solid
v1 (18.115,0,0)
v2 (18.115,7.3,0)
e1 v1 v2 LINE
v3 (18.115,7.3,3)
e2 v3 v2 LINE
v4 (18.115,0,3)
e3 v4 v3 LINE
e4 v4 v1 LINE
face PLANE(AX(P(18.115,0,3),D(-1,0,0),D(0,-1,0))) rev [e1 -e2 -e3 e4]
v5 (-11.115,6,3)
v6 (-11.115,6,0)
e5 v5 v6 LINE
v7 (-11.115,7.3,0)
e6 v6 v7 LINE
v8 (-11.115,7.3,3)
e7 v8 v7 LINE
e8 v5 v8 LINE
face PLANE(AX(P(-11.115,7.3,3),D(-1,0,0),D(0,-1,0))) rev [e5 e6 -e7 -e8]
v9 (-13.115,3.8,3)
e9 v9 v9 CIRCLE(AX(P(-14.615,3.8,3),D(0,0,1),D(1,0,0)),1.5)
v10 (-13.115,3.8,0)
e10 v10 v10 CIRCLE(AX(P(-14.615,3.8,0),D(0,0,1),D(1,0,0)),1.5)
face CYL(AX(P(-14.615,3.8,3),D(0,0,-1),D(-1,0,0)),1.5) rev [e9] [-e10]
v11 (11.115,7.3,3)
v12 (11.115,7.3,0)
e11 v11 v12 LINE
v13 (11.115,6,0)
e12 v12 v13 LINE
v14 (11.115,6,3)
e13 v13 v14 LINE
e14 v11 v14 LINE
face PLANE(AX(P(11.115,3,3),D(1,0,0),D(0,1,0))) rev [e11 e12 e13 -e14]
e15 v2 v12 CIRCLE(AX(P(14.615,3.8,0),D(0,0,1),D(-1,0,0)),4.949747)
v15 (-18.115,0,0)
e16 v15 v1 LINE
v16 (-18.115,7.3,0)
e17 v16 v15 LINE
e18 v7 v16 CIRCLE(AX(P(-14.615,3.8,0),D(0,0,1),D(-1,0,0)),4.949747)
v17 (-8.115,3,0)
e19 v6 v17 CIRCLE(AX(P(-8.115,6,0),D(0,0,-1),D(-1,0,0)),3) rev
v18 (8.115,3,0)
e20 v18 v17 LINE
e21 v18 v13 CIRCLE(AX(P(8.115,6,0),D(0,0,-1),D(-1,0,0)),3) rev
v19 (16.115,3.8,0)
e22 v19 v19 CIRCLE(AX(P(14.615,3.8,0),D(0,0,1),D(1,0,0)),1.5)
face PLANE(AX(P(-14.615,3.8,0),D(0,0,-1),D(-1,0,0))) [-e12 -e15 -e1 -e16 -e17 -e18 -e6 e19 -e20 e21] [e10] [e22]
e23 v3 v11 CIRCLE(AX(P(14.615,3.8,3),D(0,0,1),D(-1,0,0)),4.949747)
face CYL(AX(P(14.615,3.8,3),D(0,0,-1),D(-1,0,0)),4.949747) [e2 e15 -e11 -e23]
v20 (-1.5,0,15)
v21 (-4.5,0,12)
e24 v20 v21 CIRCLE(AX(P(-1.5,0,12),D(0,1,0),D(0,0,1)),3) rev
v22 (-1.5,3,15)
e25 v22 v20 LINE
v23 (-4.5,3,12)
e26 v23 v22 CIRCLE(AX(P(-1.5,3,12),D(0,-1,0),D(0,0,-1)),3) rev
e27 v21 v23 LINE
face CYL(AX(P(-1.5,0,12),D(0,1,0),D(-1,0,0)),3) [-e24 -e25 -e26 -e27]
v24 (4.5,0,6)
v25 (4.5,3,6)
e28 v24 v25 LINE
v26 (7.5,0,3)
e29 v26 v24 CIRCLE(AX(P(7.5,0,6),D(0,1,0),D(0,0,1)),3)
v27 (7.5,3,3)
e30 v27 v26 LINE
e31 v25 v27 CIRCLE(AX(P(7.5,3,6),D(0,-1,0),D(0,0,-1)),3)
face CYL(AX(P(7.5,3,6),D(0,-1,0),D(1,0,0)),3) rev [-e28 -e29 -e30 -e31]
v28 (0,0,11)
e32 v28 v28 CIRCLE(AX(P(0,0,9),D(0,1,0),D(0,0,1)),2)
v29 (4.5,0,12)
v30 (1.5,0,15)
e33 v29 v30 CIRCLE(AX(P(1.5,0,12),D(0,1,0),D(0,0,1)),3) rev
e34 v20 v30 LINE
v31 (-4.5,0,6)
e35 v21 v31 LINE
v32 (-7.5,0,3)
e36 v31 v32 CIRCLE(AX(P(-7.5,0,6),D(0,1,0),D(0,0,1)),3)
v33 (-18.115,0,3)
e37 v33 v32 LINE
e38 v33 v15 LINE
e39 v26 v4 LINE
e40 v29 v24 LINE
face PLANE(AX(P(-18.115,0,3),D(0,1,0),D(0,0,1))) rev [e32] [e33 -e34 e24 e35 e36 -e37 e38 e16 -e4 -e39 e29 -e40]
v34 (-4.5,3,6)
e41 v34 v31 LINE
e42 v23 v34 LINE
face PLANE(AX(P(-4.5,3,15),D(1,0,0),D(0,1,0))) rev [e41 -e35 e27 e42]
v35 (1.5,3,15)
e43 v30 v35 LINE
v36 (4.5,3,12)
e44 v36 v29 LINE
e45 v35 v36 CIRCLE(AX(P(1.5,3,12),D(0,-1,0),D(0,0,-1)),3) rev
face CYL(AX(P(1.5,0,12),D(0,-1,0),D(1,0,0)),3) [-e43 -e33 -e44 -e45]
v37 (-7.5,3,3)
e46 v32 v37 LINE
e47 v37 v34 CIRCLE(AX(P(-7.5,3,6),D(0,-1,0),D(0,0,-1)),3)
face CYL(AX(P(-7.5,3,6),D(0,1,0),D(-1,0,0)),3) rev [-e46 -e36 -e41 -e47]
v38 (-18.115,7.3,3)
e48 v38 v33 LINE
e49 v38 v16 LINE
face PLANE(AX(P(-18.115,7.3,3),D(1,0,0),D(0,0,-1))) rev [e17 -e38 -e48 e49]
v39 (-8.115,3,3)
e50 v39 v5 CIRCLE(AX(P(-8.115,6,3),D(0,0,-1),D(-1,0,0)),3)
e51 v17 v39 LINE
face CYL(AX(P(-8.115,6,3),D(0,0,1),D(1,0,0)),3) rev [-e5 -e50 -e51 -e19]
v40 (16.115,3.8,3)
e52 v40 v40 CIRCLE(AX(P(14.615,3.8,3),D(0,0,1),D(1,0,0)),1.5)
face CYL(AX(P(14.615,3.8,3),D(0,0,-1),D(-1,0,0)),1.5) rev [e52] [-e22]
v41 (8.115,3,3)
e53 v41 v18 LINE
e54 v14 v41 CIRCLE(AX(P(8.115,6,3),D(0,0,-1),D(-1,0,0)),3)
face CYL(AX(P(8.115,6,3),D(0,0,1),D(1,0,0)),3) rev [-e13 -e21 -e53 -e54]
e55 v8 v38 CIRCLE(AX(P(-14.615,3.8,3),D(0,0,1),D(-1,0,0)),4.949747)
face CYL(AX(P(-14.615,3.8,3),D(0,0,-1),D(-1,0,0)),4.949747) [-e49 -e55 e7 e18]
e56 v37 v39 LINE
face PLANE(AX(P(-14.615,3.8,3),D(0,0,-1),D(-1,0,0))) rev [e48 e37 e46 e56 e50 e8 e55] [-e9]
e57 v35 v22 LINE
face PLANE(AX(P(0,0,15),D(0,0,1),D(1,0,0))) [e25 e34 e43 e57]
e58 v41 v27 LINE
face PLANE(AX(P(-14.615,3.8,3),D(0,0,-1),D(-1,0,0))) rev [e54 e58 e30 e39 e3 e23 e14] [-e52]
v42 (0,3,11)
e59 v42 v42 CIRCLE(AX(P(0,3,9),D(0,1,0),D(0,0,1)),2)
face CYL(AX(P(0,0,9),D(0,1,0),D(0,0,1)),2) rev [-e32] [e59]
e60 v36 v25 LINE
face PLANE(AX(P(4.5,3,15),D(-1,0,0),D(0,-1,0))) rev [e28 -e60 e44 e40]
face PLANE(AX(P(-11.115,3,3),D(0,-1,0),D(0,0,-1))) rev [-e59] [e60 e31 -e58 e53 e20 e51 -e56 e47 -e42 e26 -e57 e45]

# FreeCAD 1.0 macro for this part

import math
import FreeCAD as App
import Part
import Sketcher
Q = App.Units.Quantity


def edges_at(feature, points):
    """Names of the edges that pass closest to the given points."""
    edges = feature.Shape.Edges
    near = lambda p: min(range(len(edges)), key=lambda i: edges[i].distToShape(Part.Vertex(*p))[0])
    return sorted({f"Edge{near(p) + 1}" for p in points})

doc = App.newDocument("Part")
body = doc.addObject("PartDesign::Body", "Body")

sketch1 = doc.addObject("Sketcher::SketchObject", "Sketch")
body.addObject(sketch1)
sketch1.AttachmentSupport = (doc.XY_Plane, [""])
sketch1.MapMode = "FlatFace"
sketch1.addGeometry(Part.LineSegment(App.Vector(-18.115, 7.3, 0), App.Vector(-18.115, 0, 0)), False)
sketch1.addGeometry(Part.LineSegment(App.Vector(-18.115, 0, 0), App.Vector(18.115, 0, 0)), False)
sketch1.addGeometry(Part.LineSegment(App.Vector(18.115, 0, 0), App.Vector(18.115, 7.3, 0)), False)
sketch1.addGeometry(Part.ArcOfCircle(Part.Circle(App.Vector(14.615, 3.8, 0), App.Vector(0, 0, 1), 4.949747), math.radians(45), math.radians(135)), False)
sketch1.addGeometry(Part.LineSegment(App.Vector(11.115, 7.3, 0), App.Vector(11.115, 3, 0)), False)
sketch1.addGeometry(Part.LineSegment(App.Vector(11.115, 3, 0), App.Vector(-11.115, 3, 0)), False)
sketch1.addGeometry(Part.LineSegment(App.Vector(-11.115, 3, 0), App.Vector(-11.115, 7.3, 0)), False)
sketch1.addGeometry(Part.ArcOfCircle(Part.Circle(App.Vector(-14.615, 3.8, 0), App.Vector(0, 0, 1), 4.949747), math.radians(45), math.radians(135)), False)
sketch1.addGeometry(Part.Circle(App.Vector(-14.615, 3.8, 0), App.Vector(0, 0, 1), 1.5), False)
sketch1.addGeometry(Part.Circle(App.Vector(14.615, 3.8, 0), App.Vector(0, 0, 1), 1.5), False)
sketch1.addConstraint(Sketcher.Constraint("Coincident", 0, 2, 1, 1))
sketch1.addConstraint(Sketcher.Constraint("Coincident", 1, 2, 2, 1))
sketch1.addConstraint(Sketcher.Constraint("Coincident", 2, 2, 3, 1))
sketch1.addConstraint(Sketcher.Constraint("Coincident", 3, 2, 4, 1))
sketch1.addConstraint(Sketcher.Constraint("Coincident", 4, 2, 5, 1))
sketch1.addConstraint(Sketcher.Constraint("Coincident", 5, 2, 6, 1))
sketch1.addConstraint(Sketcher.Constraint("Coincident", 6, 2, 7, 1))
sketch1.addConstraint(Sketcher.Constraint("Coincident", 7, 2, 0, 1))
sketch1.addConstraint(Sketcher.Constraint("Vertical", 0))
sketch1.addConstraint(Sketcher.Constraint("Horizontal", 1))
sketch1.addConstraint(Sketcher.Constraint("Vertical", 2))
sketch1.addConstraint(Sketcher.Constraint("Vertical", 4))
sketch1.addConstraint(Sketcher.Constraint("Horizontal", 5))
sketch1.addConstraint(Sketcher.Constraint("Vertical", 6))
sketch1.addConstraint(Sketcher.Constraint("Coincident", 8, 3, 7, 3))
sketch1.addConstraint(Sketcher.Constraint("Coincident", 9, 3, 3, 3))
sketch1.addConstraint(Sketcher.Constraint("Equal", 3, 7))
sketch1.addConstraint(Sketcher.Constraint("Equal", 8, 9))
sketch1.addConstraint(Sketcher.Constraint("Symmetric", 0, 2, 1, 2, -1, 1))
sketch1.addConstraint(Sketcher.Constraint("Symmetric", 3, 3, 7, 3, -2))
sketch1.addConstraint(Sketcher.Constraint("Horizontal", 2, 2, 3, 2))
sketch1.addConstraint(Sketcher.Constraint("Horizontal", 3, 2, 6, 2))
sketch1.addConstraint(Sketcher.Constraint("Diameter", 8, Q("3 mm")))
sketch1.addConstraint(Sketcher.Constraint("DistanceY", 0, 2, 0, 1, Q("7.3 mm")))
sketch1.addConstraint(Sketcher.Constraint("DistanceY", 4, 2, 4, 1, Q("4.3 mm")))
sketch1.addConstraint(Sketcher.Constraint("DistanceX", 3, 2, 2, 2, Q("7 mm")))
sketch1.addConstraint(Sketcher.Constraint("DistanceX", 1, 1, 1, 2, Q("36.23 mm")))
sketch1.addConstraint(Sketcher.Constraint("DistanceY", -1, 1, 3, 3, Q("3.8 mm")))
pad1 = doc.addObject("PartDesign::Pad", "Pad")
body.addObject(pad1)
pad1.Profile = sketch1
pad1.Length = 3

sketch2 = doc.addObject("Sketcher::SketchObject", "Sketch001")
body.addObject(sketch2)
sketch2.AttachmentSupport = (doc.XY_Plane, [""])
sketch2.MapMode = "FlatFace"
sketch2.AttachmentOffset = App.Placement(App.Vector(0, 0, 3), App.Rotation())
sketch2.addGeometry(Part.LineSegment(App.Vector(-4.5, 3, 0), App.Vector(-4.5, 0, 0)), False)
sketch2.addGeometry(Part.LineSegment(App.Vector(-4.5, 0, 0), App.Vector(4.5, 0, 0)), False)
sketch2.addGeometry(Part.LineSegment(App.Vector(4.5, 0, 0), App.Vector(4.5, 3, 0)), False)
sketch2.addGeometry(Part.LineSegment(App.Vector(4.5, 3, 0), App.Vector(-4.5, 3, 0)), False)
sketch2.addConstraint(Sketcher.Constraint("Coincident", 0, 2, 1, 1))
sketch2.addConstraint(Sketcher.Constraint("Coincident", 1, 2, 2, 1))
sketch2.addConstraint(Sketcher.Constraint("Coincident", 2, 2, 3, 1))
sketch2.addConstraint(Sketcher.Constraint("Coincident", 3, 2, 0, 1))
sketch2.addConstraint(Sketcher.Constraint("Vertical", 0))
sketch2.addConstraint(Sketcher.Constraint("Horizontal", 1))
sketch2.addConstraint(Sketcher.Constraint("Vertical", 2))
sketch2.addConstraint(Sketcher.Constraint("Horizontal", 3))
sketch2.addConstraint(Sketcher.Constraint("Symmetric", 0, 2, 1, 2, -1, 1))
sketch2.addConstraint(Sketcher.Constraint("DistanceX", 1, 1, 1, 2, Q("9 mm")))
sketch2.addConstraint(Sketcher.Constraint("DistanceY", 0, 2, 0, 1, Q("3 mm")))
pad2 = doc.addObject("PartDesign::Pad", "Pad001")
body.addObject(pad2)
pad2.Profile = sketch2
pad2.Length = 12

sketch3 = doc.addObject("Sketcher::SketchObject", "Sketch002")
body.addObject(sketch3)
sketch3.AttachmentSupport = (doc.XZ_Plane, [""])
sketch3.MapMode = "FlatFace"
sketch3.AttachmentOffset = App.Placement(App.Vector(0, 0, -3), App.Rotation())
sketch3.addGeometry(Part.Circle(App.Vector(0, 9, 0), App.Vector(0, 0, 1), 2), False)
sketch3.addConstraint(Sketcher.Constraint("PointOnObject", 0, 3, -2))
sketch3.addConstraint(Sketcher.Constraint("Diameter", 0, Q("4 mm")))
sketch3.addConstraint(Sketcher.Constraint("DistanceY", -1, 1, 0, 3, Q("9 mm")))
pocket1 = doc.addObject("PartDesign::Pocket", "Pocket")
body.addObject(pocket1)
pocket1.Profile = sketch3
pocket1.Type = "ThroughAll"
pocket1.Reversed = True
doc.recompute()

fillet = doc.addObject("PartDesign::Fillet", "Fillet")
body.addObject(fillet)
fillet.Base = (pocket1, edges_at(pocket1, [
    (-11.115, 3, 1.5),
    (11.115, 3, 1.5),
    (-4.5, 1.5, 3),
    (4.5, 1.5, 3),
    (-4.5, 1.5, 15),
    (4.5, 1.5, 15),
]))
fillet.Radius = 3

doc.recompute()
